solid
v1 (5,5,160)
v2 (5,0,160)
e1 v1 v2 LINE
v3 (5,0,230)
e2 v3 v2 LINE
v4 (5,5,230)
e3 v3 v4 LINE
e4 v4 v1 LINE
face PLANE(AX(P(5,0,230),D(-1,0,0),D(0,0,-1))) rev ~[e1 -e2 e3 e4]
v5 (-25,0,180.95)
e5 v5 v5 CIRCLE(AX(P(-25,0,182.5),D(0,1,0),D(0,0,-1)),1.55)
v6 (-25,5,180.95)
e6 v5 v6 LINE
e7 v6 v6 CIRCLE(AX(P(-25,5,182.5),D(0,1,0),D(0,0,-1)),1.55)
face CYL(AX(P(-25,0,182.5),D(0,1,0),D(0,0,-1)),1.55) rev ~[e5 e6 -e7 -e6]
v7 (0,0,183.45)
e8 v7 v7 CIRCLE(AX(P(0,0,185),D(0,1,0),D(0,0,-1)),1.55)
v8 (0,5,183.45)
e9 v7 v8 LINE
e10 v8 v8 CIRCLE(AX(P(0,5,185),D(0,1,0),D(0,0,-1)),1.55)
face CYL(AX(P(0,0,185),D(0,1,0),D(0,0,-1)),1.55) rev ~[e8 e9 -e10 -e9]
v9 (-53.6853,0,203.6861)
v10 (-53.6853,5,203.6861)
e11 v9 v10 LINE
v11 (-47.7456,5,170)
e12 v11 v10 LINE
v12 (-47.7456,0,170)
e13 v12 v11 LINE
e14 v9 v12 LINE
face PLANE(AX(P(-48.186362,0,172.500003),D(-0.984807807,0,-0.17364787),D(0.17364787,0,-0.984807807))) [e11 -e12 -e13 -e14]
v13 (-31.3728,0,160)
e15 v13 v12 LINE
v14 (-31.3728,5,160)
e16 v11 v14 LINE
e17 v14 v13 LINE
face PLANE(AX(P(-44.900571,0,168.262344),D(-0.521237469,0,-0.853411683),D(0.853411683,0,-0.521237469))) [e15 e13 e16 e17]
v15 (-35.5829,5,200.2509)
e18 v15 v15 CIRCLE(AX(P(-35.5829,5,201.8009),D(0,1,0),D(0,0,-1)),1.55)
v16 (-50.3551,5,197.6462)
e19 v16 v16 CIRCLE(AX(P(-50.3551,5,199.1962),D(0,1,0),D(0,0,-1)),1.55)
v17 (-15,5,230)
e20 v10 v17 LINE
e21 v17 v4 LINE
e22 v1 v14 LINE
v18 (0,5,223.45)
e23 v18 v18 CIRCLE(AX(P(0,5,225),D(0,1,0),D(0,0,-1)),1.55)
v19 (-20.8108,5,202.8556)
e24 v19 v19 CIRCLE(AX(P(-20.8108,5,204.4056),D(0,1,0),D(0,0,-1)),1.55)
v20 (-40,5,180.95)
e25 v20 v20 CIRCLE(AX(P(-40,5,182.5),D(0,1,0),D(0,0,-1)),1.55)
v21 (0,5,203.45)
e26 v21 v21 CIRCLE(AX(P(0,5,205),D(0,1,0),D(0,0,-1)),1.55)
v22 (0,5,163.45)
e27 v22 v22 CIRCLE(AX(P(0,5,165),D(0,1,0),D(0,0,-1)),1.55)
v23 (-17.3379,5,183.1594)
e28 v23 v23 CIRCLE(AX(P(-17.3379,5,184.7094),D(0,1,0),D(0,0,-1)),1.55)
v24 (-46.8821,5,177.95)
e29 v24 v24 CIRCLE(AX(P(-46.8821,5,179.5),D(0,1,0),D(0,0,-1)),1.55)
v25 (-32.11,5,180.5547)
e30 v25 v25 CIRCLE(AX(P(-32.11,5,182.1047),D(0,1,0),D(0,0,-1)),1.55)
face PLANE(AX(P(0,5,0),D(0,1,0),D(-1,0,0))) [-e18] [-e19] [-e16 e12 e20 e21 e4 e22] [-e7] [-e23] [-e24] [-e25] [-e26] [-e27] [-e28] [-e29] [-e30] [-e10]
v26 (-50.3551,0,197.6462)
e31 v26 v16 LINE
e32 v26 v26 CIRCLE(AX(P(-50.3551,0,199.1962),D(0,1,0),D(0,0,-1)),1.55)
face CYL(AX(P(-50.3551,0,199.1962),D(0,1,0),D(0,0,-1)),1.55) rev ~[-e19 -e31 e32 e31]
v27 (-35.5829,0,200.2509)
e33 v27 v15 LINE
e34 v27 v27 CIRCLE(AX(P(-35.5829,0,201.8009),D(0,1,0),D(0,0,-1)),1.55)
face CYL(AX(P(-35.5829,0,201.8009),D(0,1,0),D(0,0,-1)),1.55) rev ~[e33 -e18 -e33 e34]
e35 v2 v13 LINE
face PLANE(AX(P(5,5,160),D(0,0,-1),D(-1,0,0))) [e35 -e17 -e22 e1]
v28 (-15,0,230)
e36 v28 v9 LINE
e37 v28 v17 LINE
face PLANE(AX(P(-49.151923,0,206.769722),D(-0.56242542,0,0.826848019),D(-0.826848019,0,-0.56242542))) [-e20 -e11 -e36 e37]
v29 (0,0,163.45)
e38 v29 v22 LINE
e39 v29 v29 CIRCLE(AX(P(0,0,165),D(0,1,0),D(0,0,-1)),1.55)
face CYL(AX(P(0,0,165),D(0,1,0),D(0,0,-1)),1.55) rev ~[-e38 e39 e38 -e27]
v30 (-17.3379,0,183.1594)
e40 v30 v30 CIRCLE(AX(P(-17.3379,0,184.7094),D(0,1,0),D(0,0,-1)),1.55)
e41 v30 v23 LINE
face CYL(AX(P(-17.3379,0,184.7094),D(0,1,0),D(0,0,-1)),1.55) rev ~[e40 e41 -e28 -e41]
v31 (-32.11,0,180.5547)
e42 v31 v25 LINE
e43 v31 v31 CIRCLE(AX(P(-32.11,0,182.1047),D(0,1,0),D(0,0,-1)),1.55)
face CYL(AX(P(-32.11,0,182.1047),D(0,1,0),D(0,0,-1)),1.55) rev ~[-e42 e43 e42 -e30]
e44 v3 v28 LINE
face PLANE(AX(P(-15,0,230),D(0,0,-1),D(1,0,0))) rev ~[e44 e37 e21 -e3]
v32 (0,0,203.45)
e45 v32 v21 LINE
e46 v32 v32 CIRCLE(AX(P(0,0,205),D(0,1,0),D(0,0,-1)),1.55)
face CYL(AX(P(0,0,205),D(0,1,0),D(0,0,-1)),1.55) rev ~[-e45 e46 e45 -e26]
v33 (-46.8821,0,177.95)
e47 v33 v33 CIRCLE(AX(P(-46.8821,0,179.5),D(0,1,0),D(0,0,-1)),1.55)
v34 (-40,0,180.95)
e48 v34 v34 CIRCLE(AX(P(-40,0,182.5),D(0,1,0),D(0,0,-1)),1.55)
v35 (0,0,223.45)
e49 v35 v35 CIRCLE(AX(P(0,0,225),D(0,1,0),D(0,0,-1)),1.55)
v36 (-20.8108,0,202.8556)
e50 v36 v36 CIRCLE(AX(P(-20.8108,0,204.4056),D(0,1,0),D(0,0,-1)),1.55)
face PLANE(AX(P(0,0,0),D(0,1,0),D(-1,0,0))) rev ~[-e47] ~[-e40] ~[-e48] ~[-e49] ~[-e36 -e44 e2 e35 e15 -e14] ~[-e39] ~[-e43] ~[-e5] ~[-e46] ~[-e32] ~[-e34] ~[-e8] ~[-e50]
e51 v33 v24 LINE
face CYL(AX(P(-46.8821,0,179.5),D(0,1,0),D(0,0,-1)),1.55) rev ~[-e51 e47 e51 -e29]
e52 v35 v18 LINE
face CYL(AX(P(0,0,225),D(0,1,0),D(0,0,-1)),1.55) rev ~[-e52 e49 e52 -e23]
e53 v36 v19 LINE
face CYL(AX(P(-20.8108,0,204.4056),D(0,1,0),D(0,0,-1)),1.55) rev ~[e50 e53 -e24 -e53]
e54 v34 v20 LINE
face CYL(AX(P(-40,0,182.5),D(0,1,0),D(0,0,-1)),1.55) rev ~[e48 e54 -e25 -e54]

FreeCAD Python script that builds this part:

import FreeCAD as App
import Part
import Sketcher

V = App.Vector
Q = App.Units.Quantity


def add_polygon(sketch, points):
    """Adds a closed chain of lines whose ends are joined by coincident constraints."""
    first, n = sketch.GeometryCount, len(points)
    for a, b in zip(points, points[1:] + points[:1]):
        sketch.addGeometry(Part.LineSegment(App.Vector(*a, 0), App.Vector(*b, 0)), False)
    for i in range(n):
        sketch.addConstraint(Sketcher.Constraint("Coincident", first + i, 2, first + (i + 1) % n, 1))

doc = App.newDocument("Part")
body = doc.addObject("PartDesign::Body", "Body")

sketch1 = body.newObject("Sketcher::SketchObject", "Sketch")
sketch1.AttachmentSupport = (doc.getObject("XZ_Plane"), [""])
sketch1.MapMode = "FlatFace"
add_polygon(sketch1, [(-48, 170), (-54, 204), (-15, 230), (15, 230), (15, 150), (-15, 150)])
sketch1.addConstraint([
    Sketcher.Constraint("Horizontal", 2),
    Sketcher.Constraint("Vertical", 3),
    Sketcher.Constraint("Horizontal", 4),
    Sketcher.Constraint("Vertical", 1, 2, 4, 2),
    Sketcher.Constraint("DistanceX", 2, 1, 2, 2, Q("30 mm")),
    Sketcher.Constraint("DistanceX", 1, 2, -1, 1, Q("15 mm")),
    Sketcher.Constraint("DistanceY", 4, 2, 5, 2, Q("20 mm")),
    Sketcher.Constraint("DistanceY", 3, 2, 3, 1, Q("80 mm")),
    Sketcher.Constraint("Angle", 0, Q("100 deg")),
    Sketcher.Constraint("DistanceY", -1, 1, 1, 2, Q("230 mm")),
    Sketcher.Constraint("DistanceY", -1, 1, 0, 2, Q("203.686 mm")),
    Sketcher.Constraint("Distance", 1, Q("46.7865 mm")),
])
pad1 = body.newObject("PartDesign::Pad", "Pad")
pad1.Profile = sketch1
pad1.Length = 5
pad1.Reversed = True

sketch2 = body.newObject("Sketcher::SketchObject", "Sketch001")
sketch2.AttachmentSupport = (doc.getObject("XZ_Plane"), [""])
sketch2.MapMode = "FlatFace"
sketch2.addGeometry([
    Part.Circle(V(0, -125, 0), V(0, 0, 1), 1.6),
    Part.Circle(V(-42.3, 115, 0), V(0, 0, 1), 1.6),
    Part.Circle(V(0, 133, 0), V(0, 0, 1), 1.6),
    Part.Circle(V(0, 122.5, 0), V(0, 0, 1), 1.6),
    Part.Circle(V(38.9, -134.2, 0), V(0, 0, 1), 1.6),
    Part.Circle(V(38, -129.3, 0), V(0, 0, 1), 1.6),
    Part.Circle(V(23.3, -131.9, 0), V(0, 0, 1), 1.6),
    Part.Circle(V(24.1, -136.8, 0), V(0, 0, 1), 1.6),
    Part.Circle(V(9.4, -139.4, 0), V(0, 0, 1), 1.6),
    Part.Circle(V(8.5, -134.5, 0), V(0, 0, 1), 1.6),
    Part.Circle(V(-17.3, 184.7, 0), V(0, 0, 1), 1.6),
    Part.Circle(V(-32.1, 182.1, 0), V(0, 0, 1), 1.6),
    Part.Circle(V(-46.9, 179.5, 0), V(0, 0, 1), 1.6),
    Part.Circle(V(-50.4, 199.2, 0), V(0, 0, 1), 1.6),
    Part.Circle(V(-35.6, 201.8, 0), V(0, 0, 1), 1.6),
    Part.Circle(V(-20.8, 204.4, 0), V(0, 0, 1), 1.6),
    Part.Circle(V(0, 225, 0), V(0, 0, 1), 1.6),
    Part.Circle(V(0, 289, 0), V(0, 0, 1), 1.6),
    Part.Circle(V(0, 300, 0), V(0, 0, 1), 1.6),
    Part.Circle(V(0, 311, 0), V(0, 0, 1), 1.6),
], False)
sketch2.addConstraint([
    Sketcher.Constraint("Equal", 0, 1),
    Sketcher.Constraint("Equal", 1, 2),
    Sketcher.Constraint("Equal", 2, 3),
    Sketcher.Constraint("Equal", 3, 4),
    Sketcher.Constraint("Equal", 4, 5),
    Sketcher.Constraint("Equal", 5, 6),
    Sketcher.Constraint("Equal", 6, 7),
    Sketcher.Constraint("Equal", 7, 8),
    Sketcher.Constraint("Equal", 8, 9),
    Sketcher.Constraint("Equal", 9, 10),
    Sketcher.Constraint("Equal", 10, 11),
    Sketcher.Constraint("Equal", 11, 12),
    Sketcher.Constraint("Equal", 12, 13),
    Sketcher.Constraint("Equal", 13, 14),
    Sketcher.Constraint("Equal", 14, 15),
    Sketcher.Constraint("Equal", 15, 16),
    Sketcher.Constraint("Equal", 16, 17),
    Sketcher.Constraint("Equal", 17, 18),
    Sketcher.Constraint("Equal", 18, 19),
    Sketcher.Constraint("PointOnObject", 0, 3, -2),
    Sketcher.Constraint("PointOnObject", 2, 3, -2),
    Sketcher.Constraint("PointOnObject", 3, 3, -2),
    Sketcher.Constraint("PointOnObject", 16, 3, -2),
    Sketcher.Constraint("PointOnObject", 17, 3, -2),
    Sketcher.Constraint("PointOnObject", 18, 3, -2),
    Sketcher.Constraint("PointOnObject", 19, 3, -2),
    Sketcher.Constraint("Diameter", 0, Q("3.1 mm")),
    Sketcher.Constraint("DistanceY", 0, 3, -1, 1, Q("125 mm")),
    Sketcher.Constraint("DistanceY", -1, 1, 16, 3, Q("225 mm")),
    Sketcher.Constraint("DistanceY", -1, 1, 17, 3, Q("289 mm")),
    Sketcher.Constraint("DistanceY", -1, 1, 18, 3, Q("300 mm")),
    Sketcher.Constraint("DistanceY", -1, 1, 19, 3, Q("311 mm")),
    Sketcher.Constraint("DistanceY", 3, 3, 12, 3, Q("57 mm")),
    Sketcher.Constraint("DistanceY", -1, 1, 3, 3, Q("122.5 mm")),
    Sketcher.Constraint("DistanceY", 9, 3, -1, 1, Q("134.51 mm")),
    Sketcher.Constraint("DistanceX", 11, 3, -1, 1, Q("32.11 mm")),
    Sketcher.Constraint("DistanceX", 1, 3, 6, 3, Q("65.57 mm")),
    Sketcher.Constraint("DistanceY", 7, 3, 1, 3, Q("251.79 mm")),
    Sketcher.Constraint("DistanceY", 5, 3, 10, 3, Q("314.01 mm")),
    Sketcher.Constraint("DistanceY", 8, 3, -1, 1, Q("139.434 mm")),
    Sketcher.Constraint("DistanceX", 10, 3, -1, 1, Q("17.338 mm")),
    Sketcher.Constraint("DistanceX", 12, 3, -1, 1, Q("46.882 mm")),
    Sketcher.Constraint("DistanceX", 13, 3, -1, 1, Q("50.355 mm")),
    Sketcher.Constraint("DistanceX", 14, 3, -1, 1, Q("35.583 mm")),
    Sketcher.Constraint("DistanceY", -1, 1, 14, 3, Q("201.801 mm")),
    Sketcher.Constraint("DistanceY", 4, 3, 5, 3, Q("4.924 mm")),
    Sketcher.Constraint("DistanceX", 6, 3, 5, 3, Q("14.772 mm")),
    Sketcher.Constraint("DistanceY", 6, 3, 1, 3, Q("246.866 mm")),
    Sketcher.Constraint("DistanceX", 7, 3, 4, 3, Q("14.772 mm")),
    Sketcher.Constraint("DistanceX", 7, 3, 5, 3, Q("13.904 mm")),
    Sketcher.Constraint("DistanceX", 8, 3, 7, 3, Q("14.772 mm")),
    Sketcher.Constraint("DistanceY", 1, 3, 11, 3, Q("67.144 mm")),
    Sketcher.Constraint("DistanceY", 2, 3, 13, 3, Q("66.174 mm")),
    Sketcher.Constraint("DistanceX", 14, 3, 15, 3, Q("14.772 mm")),
    Sketcher.Constraint("DistanceY", 11, 3, 15, 3, Q("22.301 mm")),
    Sketcher.Constraint("DistanceX", 1, 3, -1, 1, Q("42.3116 mm")),
    Sketcher.Constraint("DistanceY", -1, 1, 1, 3, Q("114.9608 mm")),
    Sketcher.Constraint("DistanceY", -1, 1, 2, 3, Q("133.0222 mm")),
    Sketcher.Constraint("DistanceY", 4, 3, -1, 1, Q("134.2246 mm")),
    Sketcher.Constraint("DistanceX", -1, 1, 9, 3, Q("8.4863 mm")),
])
doc.recompute()
hole = body.newObject("PartDesign::Hole", "Hole")
hole.Profile = sketch2
hole.ThreadType = "None"
hole.Diameter = 3.1
hole.DepthType = "ThroughAll"

sketch3 = body.newObject("Sketcher::SketchObject", "Sketch002")
sketch3.AttachmentSupport = (doc.getObject("XZ_Plane"), [""])
sketch3.MapMode = "FlatFace"
sketch3.addGeometry([
    Part.Circle(V(0, 165, 0), V(0, 0, 1), 1.6),
    Part.Circle(V(0, 185, 0), V(0, 0, 1), 1.6),
    Part.Circle(V(0, 205, 0), V(0, 0, 1), 1.6),
], False)
sketch3.addConstraint([
    Sketcher.Constraint("Equal", 0, 1),
    Sketcher.Constraint("Equal", 1, 2),
    Sketcher.Constraint("PointOnObject", 0, 3, -2),
    Sketcher.Constraint("PointOnObject", 1, 3, -2),
    Sketcher.Constraint("PointOnObject", 2, 3, -2),
    Sketcher.Constraint("Diameter", 0, Q("3.1 mm")),
    Sketcher.Constraint("DistanceY", -1, 1, 0, 3, Q("165 mm")),
    Sketcher.Constraint("DistanceY", -1, 1, 1, 3, Q("185 mm")),
    Sketcher.Constraint("DistanceY", -1, 1, 2, 3, Q("205 mm")),
])
doc.recompute()
hole2 = body.newObject("PartDesign::Hole", "Hole001")
hole2.Profile = sketch3
hole2.ThreadType = "None"
hole2.Diameter = 3.1
hole2.DepthType = "ThroughAll"

sketch4 = body.newObject("Sketcher::SketchObject", "Sketch003")
sketch4.AttachmentSupport = (doc.getObject("XZ_Plane"), [""])
sketch4.MapMode = "FlatFace"
add_polygon(sketch4, [(15, 230), (5, 230), (5, 150), (15, 150)])
sketch4.addConstraint([
    Sketcher.Constraint("Horizontal", 0),
    Sketcher.Constraint("Vertical", 1),
    Sketcher.Constraint("Horizontal", 2),
    Sketcher.Constraint("Vertical", 3),
    Sketcher.Constraint("DistanceX", 0, 2, 0, 1, Q("10 mm")),
    Sketcher.Constraint("DistanceY", 1, 2, 1, 1, Q("80 mm")),
    Sketcher.Constraint("DistanceX", -1, 1, 0, 2, Q("5 mm")),
    Sketcher.Constraint("DistanceY", -1, 1, 0, 2, Q("230 mm")),
])
pocket1 = body.newObject("PartDesign::Pocket", "Pocket")
pocket1.Profile = sketch4
pocket1.Length = 5

sketch5 = body.newObject("Sketcher::SketchObject", "Sketch004")
sketch5.AttachmentSupport = (doc.getObject("XZ_Plane"), [""])
sketch5.MapMode = "FlatFace"
sketch5.addGeometry([
    Part.Circle(V(-25, 182.5, 0), V(0, 0, 1), 1.6),
    Part.Circle(V(-40, 182.5, 0), V(0, 0, 1), 1.6),
], False)
sketch5.addConstraint([
    Sketcher.Constraint("Equal", 0, 1),
    Sketcher.Constraint("Horizontal", 0, 3, 1, 3),
    Sketcher.Constraint("Diameter", 0, Q("3.1 mm")),
    Sketcher.Constraint("DistanceX", 0, 3, -1, 1, Q("25 mm")),
    Sketcher.Constraint("DistanceX", 1, 3, -1, 1, Q("40 mm")),
    Sketcher.Constraint("DistanceY", -1, 1, 0, 3, Q("182.5 mm")),
])
doc.recompute()
hole3 = body.newObject("PartDesign::Hole", "Hole002")
hole3.Profile = sketch5
hole3.ThreadType = "None"
hole3.Diameter = 3.1
hole3.DepthType = "ThroughAll"

sketch6 = body.newObject("Sketcher::SketchObject", "Sketch005")
sketch6.AttachmentSupport = (doc.getObject("XZ_Plane"), [""])
sketch6.MapMode = "FlatFace"
sketch6.AttachmentOffset = App.Placement(V(0, 0, -5), App.Rotation())
add_polygon(sketch6, [(-31, 160), (5, 160), (5, 150), (-15, 150)])
sketch6.addConstraint([
    Sketcher.Constraint("Horizontal", 0),
    Sketcher.Constraint("Vertical", 1),
    Sketcher.Constraint("Horizontal", 2),
    Sketcher.Constraint("DistanceY", 1, 2, 1, 1, Q("10 mm")),
    Sketcher.Constraint("DistanceX", 2, 2, 2, 1, Q("20 mm")),
    Sketcher.Constraint("DistanceX", -1, 1, 0, 2, Q("5 mm")),
    Sketcher.Constraint("DistanceY", -1, 1, 0, 2, Q("160 mm")),
    Sketcher.Constraint("Distance", 3, Q("19.185 mm")),
])
pocket2 = body.newObject("PartDesign::Pocket", "Pocket001")
pocket2.Profile = sketch6
pocket2.Length = 5
pocket2.Reversed = True

doc.recompute()
